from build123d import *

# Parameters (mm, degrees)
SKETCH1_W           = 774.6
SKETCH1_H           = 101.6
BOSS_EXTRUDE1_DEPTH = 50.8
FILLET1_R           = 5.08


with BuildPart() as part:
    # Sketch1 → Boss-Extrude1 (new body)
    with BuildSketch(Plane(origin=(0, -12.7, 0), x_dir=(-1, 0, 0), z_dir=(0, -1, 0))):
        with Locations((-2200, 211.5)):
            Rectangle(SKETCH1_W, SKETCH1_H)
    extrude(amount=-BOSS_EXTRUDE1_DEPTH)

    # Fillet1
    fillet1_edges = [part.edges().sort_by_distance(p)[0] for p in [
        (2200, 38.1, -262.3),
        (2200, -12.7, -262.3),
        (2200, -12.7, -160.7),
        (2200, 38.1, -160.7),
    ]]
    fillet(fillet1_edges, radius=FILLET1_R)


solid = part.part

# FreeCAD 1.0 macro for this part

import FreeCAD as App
import Part
import Sketcher
Q = App.Units.Quantity


def edges_at(feature, points):
    """Names of the edges that pass closest to the given points."""
    edges = feature.Shape.Edges
    near = lambda p: min(range(len(edges)), key=lambda i: edges[i].distToShape(Part.Vertex(*p))[0])
    return sorted({f"Edge{near(p) + 1}" for p in points})


def add_polygon(sketch, points):
    """Adds a closed chain of lines whose ends are joined by coincident constraints."""
    first, n = sketch.GeometryCount, len(points)
    for a, b in zip(points, points[1:] + points[:1]):
        sketch.addGeometry(Part.LineSegment(App.Vector(*a, 0), App.Vector(*b, 0)), False)
    for i in range(n):
        sketch.addConstraint(Sketcher.Constraint("Coincident", first + i, 2, first + (i + 1) % n, 1))

doc = App.newDocument("Part")
body = doc.addObject("PartDesign::Body", "Body")

sketch1 = body.newObject("Sketcher::SketchObject", "Sketch")
sketch1.AttachmentSupport = (doc.getObject("XZ_Plane"), [""])
sketch1.MapMode = "FlatFace"
sketch1.AttachmentOffset = App.Placement(App.Vector(0, 0, 0.5 * 25.4), App.Rotation())
add_polygon(sketch1, [(2587.3, -262.3), (2587.3, -160.7), (1812.7, -160.7), (1812.7, -262.3)])
sketch1.addConstraint(Sketcher.Constraint("Vertical", 0))
sketch1.addConstraint(Sketcher.Constraint("Horizontal", 1))
sketch1.addConstraint(Sketcher.Constraint("Vertical", 2))
sketch1.addConstraint(Sketcher.Constraint("Horizontal", 3))
sketch1.addConstraint(Sketcher.Constraint("DistanceY", 0, 1, 0, 2, Q("4 in")))
sketch1.addConstraint(Sketcher.Constraint("DistanceX", 1, 2, 1, 1, 774.6))
sketch1.addConstraint(Sketcher.Constraint("DistanceX", -1, 1, 0, 2, 2587.3))
sketch1.addConstraint(Sketcher.Constraint("DistanceY", 0, 2, -1, 1, 160.7))
pad1 = body.newObject("PartDesign::Pad", "Pad")
pad1.Profile = sketch1
pad1.Length = Q("2 in")
pad1.Reversed = True
doc.recompute()

fillet = body.newObject("PartDesign::Fillet", "Fillet")
fillet.Base = (pad1, edges_at(pad1, [
    (2200, 38.1, -262.3),
    (2200, -12.7, -262.3),
    (2200, -12.7, -160.7),
    (2200, 38.1, -160.7),
]))
fillet.Radius = Q("0.2 in")

doc.recompute()
